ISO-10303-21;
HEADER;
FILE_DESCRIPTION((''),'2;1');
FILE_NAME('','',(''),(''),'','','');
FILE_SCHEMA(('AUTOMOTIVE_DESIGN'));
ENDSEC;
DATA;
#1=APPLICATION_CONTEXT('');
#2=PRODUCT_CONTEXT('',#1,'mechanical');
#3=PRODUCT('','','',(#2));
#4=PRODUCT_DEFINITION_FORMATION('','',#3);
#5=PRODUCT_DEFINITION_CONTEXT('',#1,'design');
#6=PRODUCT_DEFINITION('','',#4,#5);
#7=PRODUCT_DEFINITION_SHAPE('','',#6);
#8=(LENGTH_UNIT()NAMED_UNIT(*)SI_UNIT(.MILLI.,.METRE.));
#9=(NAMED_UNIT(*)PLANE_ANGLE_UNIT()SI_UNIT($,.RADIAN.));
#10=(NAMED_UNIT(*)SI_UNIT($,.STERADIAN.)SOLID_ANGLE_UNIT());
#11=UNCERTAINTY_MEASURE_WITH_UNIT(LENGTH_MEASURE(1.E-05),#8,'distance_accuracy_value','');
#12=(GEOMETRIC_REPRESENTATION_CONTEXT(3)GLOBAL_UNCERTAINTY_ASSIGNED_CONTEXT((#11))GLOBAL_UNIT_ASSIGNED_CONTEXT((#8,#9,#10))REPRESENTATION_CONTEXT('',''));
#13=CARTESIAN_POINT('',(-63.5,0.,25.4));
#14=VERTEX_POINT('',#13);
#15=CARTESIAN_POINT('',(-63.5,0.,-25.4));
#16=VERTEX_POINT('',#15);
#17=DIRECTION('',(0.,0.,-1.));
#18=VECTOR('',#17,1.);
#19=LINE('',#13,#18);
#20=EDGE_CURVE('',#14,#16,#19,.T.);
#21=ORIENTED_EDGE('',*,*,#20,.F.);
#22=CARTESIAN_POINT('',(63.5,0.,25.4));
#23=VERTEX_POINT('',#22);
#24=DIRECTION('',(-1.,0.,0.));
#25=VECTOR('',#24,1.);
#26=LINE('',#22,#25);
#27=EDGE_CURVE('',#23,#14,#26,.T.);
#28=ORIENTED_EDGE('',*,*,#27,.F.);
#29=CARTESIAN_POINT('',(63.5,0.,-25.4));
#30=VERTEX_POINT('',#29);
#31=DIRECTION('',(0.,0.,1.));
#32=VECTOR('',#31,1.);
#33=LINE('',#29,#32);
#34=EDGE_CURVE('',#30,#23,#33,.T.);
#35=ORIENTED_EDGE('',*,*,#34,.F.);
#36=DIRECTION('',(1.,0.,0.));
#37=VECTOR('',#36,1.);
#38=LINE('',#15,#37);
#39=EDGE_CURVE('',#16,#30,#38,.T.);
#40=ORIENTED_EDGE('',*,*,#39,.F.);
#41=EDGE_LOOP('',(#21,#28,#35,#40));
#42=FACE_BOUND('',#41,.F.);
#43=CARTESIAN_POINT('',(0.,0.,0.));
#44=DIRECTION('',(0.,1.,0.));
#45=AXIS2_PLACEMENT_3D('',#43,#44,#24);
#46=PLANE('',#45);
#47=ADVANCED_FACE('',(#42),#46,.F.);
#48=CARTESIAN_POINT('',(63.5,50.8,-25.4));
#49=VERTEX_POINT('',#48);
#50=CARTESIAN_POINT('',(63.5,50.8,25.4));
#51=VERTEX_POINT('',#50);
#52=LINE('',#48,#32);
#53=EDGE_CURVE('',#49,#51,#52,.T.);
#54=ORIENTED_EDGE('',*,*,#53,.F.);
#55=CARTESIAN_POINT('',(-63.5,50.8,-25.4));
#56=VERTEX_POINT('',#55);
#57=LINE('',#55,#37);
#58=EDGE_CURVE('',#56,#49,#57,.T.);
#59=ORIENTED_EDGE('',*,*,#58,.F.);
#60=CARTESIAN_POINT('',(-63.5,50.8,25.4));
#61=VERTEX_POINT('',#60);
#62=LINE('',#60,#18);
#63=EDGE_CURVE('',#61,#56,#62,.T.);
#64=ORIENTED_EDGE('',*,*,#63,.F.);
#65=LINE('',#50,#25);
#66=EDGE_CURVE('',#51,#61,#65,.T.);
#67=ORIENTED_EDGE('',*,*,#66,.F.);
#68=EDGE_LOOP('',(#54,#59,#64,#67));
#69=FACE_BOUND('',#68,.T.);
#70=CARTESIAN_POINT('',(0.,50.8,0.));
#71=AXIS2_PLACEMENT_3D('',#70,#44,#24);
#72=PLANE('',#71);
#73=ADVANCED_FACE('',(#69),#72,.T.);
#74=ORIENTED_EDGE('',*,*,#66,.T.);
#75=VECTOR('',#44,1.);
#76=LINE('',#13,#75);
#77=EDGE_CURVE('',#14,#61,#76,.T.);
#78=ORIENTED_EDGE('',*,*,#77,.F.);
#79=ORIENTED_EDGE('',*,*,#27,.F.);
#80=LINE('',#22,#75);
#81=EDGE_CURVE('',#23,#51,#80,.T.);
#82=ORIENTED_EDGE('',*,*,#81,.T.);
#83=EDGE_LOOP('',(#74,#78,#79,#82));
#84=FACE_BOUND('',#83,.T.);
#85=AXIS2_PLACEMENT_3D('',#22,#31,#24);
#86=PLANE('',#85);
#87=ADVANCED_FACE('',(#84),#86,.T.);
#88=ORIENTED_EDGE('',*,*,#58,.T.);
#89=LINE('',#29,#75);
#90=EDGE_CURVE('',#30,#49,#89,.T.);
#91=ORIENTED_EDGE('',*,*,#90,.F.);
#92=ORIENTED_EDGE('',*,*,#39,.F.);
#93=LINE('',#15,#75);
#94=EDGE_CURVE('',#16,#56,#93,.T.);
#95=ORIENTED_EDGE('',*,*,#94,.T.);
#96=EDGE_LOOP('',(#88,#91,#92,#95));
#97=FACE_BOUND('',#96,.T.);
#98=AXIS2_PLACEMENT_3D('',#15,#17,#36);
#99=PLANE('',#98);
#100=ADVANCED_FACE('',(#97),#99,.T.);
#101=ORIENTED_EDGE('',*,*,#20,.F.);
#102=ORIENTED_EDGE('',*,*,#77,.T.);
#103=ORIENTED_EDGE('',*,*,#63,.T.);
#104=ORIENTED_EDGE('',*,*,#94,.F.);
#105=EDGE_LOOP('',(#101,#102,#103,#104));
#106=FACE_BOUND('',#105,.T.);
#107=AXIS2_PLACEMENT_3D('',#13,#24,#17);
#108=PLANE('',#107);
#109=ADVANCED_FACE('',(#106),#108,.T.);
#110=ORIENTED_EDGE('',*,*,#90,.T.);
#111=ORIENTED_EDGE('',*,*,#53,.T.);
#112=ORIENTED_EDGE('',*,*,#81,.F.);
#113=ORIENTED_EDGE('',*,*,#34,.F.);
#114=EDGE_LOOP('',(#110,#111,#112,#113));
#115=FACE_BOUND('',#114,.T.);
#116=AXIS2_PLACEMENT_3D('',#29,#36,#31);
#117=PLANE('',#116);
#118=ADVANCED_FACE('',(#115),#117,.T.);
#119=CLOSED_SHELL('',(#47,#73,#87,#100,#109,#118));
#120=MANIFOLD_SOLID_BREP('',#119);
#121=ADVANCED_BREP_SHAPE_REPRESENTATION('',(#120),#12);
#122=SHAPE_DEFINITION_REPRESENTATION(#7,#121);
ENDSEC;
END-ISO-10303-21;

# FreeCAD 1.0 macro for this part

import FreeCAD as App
import Part
import Sketcher

V = App.Vector
Q = App.Units.Quantity


def add_polygon(sketch, points):
    """Adds a closed chain of lines whose ends are joined by coincident constraints."""
    first, n = sketch.GeometryCount, len(points)
    for a, b in zip(points, points[1:] + points[:1]):
        sketch.addGeometry(Part.LineSegment(App.Vector(*a, 0), App.Vector(*b, 0)), False)
    for i in range(n):
        sketch.addConstraint(Sketcher.Constraint("Coincident", first + i, 2, first + (i + 1) % n, 1))

doc = App.newDocument("Part")
body = doc.addObject("PartDesign::Body", "Body")

# Sketch on XZ plane
sketch1 = body.newObject("Sketcher::SketchObject", "Sketch")
sketch1.AttachmentSupport = (doc.getObject("XZ_Plane"), [""])
sketch1.MapMode = "FlatFace"
add_polygon(sketch1, [(-64, 25), (64, 25), (64, -25), (-64, -25)])  # lines 0-3
sketch1.addConstraint([
    Sketcher.Constraint("Horizontal", 0),
    Sketcher.Constraint("Vertical", 1),
    Sketcher.Constraint("Horizontal", 2),
    Sketcher.Constraint("Vertical", 3),
    Sketcher.Constraint("Symmetric", 0, 2, 2, 2, -1, 1),
    Sketcher.Constraint("DistanceX", 0, 1, 0, 2, Q("5 in")),
    Sketcher.Constraint("DistanceY", 1, 2, 1, 1, Q("2 in")),
])
pad1 = body.newObject("PartDesign::Pad", "Pad")
pad1.Profile = sketch1
pad1.Length = Q("2 in")
pad1.Reversed = True

doc.recompute()
